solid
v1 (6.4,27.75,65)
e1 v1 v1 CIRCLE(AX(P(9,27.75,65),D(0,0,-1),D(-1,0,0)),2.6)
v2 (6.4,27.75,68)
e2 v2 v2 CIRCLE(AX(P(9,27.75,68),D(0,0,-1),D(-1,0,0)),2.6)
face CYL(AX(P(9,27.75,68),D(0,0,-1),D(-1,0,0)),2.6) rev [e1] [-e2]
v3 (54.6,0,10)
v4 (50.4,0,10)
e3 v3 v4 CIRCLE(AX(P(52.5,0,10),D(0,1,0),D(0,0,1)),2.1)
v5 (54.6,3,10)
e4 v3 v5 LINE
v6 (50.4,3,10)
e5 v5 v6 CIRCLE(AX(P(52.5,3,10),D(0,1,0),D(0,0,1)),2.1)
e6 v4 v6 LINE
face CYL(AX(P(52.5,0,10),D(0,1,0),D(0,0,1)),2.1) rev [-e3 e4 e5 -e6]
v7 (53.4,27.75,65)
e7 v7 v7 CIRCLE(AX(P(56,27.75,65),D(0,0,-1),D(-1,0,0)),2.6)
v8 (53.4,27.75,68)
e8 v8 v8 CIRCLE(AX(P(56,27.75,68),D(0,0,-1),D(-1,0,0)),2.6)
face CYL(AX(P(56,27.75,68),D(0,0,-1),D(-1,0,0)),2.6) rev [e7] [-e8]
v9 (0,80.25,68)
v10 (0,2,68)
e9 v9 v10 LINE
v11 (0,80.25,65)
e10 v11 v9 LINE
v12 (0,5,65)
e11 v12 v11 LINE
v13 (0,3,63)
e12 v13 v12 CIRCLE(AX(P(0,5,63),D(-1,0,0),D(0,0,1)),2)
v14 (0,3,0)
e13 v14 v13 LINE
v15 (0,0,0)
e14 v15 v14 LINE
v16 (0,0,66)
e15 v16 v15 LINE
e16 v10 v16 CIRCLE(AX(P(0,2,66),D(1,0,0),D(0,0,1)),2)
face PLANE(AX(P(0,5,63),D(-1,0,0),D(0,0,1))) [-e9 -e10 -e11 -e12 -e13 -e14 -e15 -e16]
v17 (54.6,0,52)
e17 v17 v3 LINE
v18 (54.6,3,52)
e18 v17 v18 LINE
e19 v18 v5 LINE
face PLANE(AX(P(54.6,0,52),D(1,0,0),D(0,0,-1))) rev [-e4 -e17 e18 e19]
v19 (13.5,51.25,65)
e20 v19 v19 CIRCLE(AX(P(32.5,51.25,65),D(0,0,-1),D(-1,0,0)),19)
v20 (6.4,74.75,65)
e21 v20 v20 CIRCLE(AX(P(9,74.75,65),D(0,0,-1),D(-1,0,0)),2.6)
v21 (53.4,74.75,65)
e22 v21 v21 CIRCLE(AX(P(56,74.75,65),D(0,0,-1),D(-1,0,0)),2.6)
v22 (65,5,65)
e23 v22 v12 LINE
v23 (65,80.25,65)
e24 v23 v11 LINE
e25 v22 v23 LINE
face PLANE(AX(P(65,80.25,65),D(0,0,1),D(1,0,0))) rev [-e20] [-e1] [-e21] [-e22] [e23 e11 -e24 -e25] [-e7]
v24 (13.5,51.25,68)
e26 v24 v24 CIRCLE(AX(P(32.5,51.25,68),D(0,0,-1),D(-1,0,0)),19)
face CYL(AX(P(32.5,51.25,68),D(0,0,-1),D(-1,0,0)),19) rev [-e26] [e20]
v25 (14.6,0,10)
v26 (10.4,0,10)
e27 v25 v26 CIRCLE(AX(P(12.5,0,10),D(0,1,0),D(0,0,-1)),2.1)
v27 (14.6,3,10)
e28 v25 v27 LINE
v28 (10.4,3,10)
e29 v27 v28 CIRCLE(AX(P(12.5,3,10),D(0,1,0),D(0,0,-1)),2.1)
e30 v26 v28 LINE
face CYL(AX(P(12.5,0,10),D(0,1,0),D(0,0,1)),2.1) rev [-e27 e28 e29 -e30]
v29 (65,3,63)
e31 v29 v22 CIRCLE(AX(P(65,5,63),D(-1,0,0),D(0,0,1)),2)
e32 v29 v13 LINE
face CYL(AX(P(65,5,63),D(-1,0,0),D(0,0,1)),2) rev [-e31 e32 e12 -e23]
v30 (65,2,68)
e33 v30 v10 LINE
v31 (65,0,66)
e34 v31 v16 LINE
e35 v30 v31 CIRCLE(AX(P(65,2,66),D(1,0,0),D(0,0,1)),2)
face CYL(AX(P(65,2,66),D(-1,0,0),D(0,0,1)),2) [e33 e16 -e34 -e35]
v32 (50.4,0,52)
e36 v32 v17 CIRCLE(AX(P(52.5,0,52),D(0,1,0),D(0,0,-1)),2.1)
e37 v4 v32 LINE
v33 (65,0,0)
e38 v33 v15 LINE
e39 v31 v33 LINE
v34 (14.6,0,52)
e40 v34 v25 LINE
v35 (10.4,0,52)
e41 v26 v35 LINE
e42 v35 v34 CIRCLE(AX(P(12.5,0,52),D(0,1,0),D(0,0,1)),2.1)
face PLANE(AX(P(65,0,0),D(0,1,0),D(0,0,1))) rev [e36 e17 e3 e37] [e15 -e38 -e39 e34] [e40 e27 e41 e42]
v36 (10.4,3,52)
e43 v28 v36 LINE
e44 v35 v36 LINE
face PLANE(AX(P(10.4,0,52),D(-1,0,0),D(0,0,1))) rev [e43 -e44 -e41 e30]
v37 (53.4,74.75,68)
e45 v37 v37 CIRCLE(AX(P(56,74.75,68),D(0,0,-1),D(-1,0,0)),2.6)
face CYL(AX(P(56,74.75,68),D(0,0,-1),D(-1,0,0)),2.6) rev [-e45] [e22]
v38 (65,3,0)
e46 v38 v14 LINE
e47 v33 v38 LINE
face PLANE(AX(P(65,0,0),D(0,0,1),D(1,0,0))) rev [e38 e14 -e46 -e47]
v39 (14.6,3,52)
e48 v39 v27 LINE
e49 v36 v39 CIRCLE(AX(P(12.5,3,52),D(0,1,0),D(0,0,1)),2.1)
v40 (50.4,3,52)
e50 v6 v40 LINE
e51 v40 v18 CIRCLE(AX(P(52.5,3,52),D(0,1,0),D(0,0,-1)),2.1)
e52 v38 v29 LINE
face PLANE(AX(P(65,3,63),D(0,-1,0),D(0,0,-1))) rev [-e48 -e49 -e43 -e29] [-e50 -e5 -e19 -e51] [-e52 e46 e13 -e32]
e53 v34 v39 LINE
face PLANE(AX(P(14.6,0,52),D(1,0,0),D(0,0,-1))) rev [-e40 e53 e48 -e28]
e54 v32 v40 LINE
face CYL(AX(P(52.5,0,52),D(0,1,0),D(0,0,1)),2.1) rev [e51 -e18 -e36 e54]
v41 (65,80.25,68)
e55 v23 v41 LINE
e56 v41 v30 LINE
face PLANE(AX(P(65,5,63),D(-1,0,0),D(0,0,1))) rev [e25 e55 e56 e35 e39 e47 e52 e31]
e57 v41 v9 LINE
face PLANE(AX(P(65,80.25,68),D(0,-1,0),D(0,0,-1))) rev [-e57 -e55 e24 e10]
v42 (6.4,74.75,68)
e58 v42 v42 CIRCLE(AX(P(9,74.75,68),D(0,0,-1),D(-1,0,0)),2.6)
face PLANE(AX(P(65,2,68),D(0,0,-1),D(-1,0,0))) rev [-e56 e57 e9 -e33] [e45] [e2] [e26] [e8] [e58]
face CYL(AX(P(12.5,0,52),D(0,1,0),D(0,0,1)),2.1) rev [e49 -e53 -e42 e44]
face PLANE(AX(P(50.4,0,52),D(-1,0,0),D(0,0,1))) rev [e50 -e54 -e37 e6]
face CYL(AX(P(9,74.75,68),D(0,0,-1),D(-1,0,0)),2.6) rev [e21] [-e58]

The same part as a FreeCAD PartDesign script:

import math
import FreeCAD as App
import Part
import Sketcher

V = App.Vector
Q = App.Units.Quantity

doc = App.newDocument("Part")
body = doc.addObject("PartDesign::Body", "Body")

sketch1 = body.newObject("Sketcher::SketchObject", "Sketch")
sketch1.AttachmentSupport = (doc.getObject("YZ_Plane"), [""])
sketch1.MapMode = "FlatFace"
sketch1.addGeometry([
    Part.LineSegment(V(0, 66, 0), V(0, 0, 0)),
    Part.LineSegment(V(0, 0, 0), V(3, 0, 0)),
    Part.LineSegment(V(3, 0, 0), V(3, 63, 0)),
    Part.ArcOfCircle(Part.Circle(V(5, 63, 0), V(0, 0, 1), 2), math.radians(90), math.radians(180)),
    Part.LineSegment(V(5, 65, 0), V(80.25, 65, 0)),
    Part.LineSegment(V(80.25, 65, 0), V(80.25, 68, 0)),
    Part.LineSegment(V(80.25, 68, 0), V(2, 68, 0)),
    Part.ArcOfCircle(Part.Circle(V(2, 66, 0), V(0, 0, 1), 2), math.radians(90), math.radians(180)),
], False)
sketch1.addConstraint([
    Sketcher.Constraint("Coincident", 0, 2, 1, 1),
    Sketcher.Constraint("Coincident", 1, 2, 2, 1),
    Sketcher.Constraint("Tangent", 2, 2, 3, 2),
    Sketcher.Constraint("Tangent", 3, 1, 4, 1),
    Sketcher.Constraint("Coincident", 4, 2, 5, 1),
    Sketcher.Constraint("Coincident", 5, 2, 6, 1),
    Sketcher.Constraint("Tangent", 6, 2, 7, 1),
    Sketcher.Constraint("Tangent", 7, 2, 0, 1),
    Sketcher.Constraint("Vertical", 0),
    Sketcher.Constraint("Horizontal", 1),
    Sketcher.Constraint("Vertical", 2),
    Sketcher.Constraint("Horizontal", 4),
    Sketcher.Constraint("Vertical", 5),
    Sketcher.Constraint("Horizontal", 6),
    Sketcher.Constraint("Coincident", 0, 2, -1, 1),
    Sketcher.Constraint("Equal", 3, 7),
    Sketcher.Constraint("Equal", 1, 5),
    Sketcher.Constraint("Radius", 3, Q("2 mm")),
    Sketcher.Constraint("DistanceX", 1, 1, 1, 2, Q("3 mm")),
    Sketcher.Constraint("DistanceY", 0, 2, 0, 1, Q("66 mm")),
    Sketcher.Constraint("DistanceX", 4, 1, 4, 2, Q("75.25 mm")),
])
pad1 = body.newObject("PartDesign::Pad", "Pad")
pad1.Profile = sketch1
pad1.Length = 65

sketch2 = body.newObject("Sketcher::SketchObject", "Sketch001")
sketch2.AttachmentSupport = (doc.getObject("XZ_Plane"), [""])
sketch2.MapMode = "FlatFace"
sketch2.AttachmentOffset = App.Placement(V(0, 0, -3), App.Rotation())
sketch2.addGeometry([
    Part.LineSegment(V(50.4, 10, 0), V(50.4, 52, 0)),
    Part.ArcOfCircle(Part.Circle(V(52.5, 52, 0), V(0, 0, 1), 2.1), math.radians(0), math.radians(180)),
    Part.LineSegment(V(54.6, 52, 0), V(54.6, 10, 0)),
    Part.ArcOfCircle(Part.Circle(V(52.5, 10, 0), V(0, 0, 1), 2.1), math.radians(180), math.radians(360)),
    Part.LineSegment(V(10.4, 10, 0), V(10.4, 52, 0)),
    Part.ArcOfCircle(Part.Circle(V(12.5, 52, 0), V(0, 0, 1), 2.1), math.radians(0), math.radians(180)),
    Part.LineSegment(V(14.6, 52, 0), V(14.6, 10, 0)),
    Part.ArcOfCircle(Part.Circle(V(12.5, 10, 0), V(0, 0, 1), 2.1), math.radians(180), math.radians(360)),
], False)
sketch2.addConstraint([
    Sketcher.Constraint("Tangent", 0, 2, 1, 2),
    Sketcher.Constraint("Tangent", 1, 1, 2, 1),
    Sketcher.Constraint("Tangent", 2, 2, 3, 2),
    Sketcher.Constraint("Tangent", 3, 1, 0, 1),
    Sketcher.Constraint("Tangent", 4, 2, 5, 2),
    Sketcher.Constraint("Tangent", 5, 1, 6, 1),
    Sketcher.Constraint("Tangent", 6, 2, 7, 2),
    Sketcher.Constraint("Tangent", 7, 1, 4, 1),
    Sketcher.Constraint("Vertical", 0),
    Sketcher.Constraint("Vertical", 2),
    Sketcher.Constraint("Vertical", 4),
    Sketcher.Constraint("Vertical", 6),
    Sketcher.Constraint("Equal", 3, 5),
    Sketcher.Constraint("Horizontal", 1, 3, 5, 3),
    Sketcher.Constraint("Horizontal", 3, 3, 7, 3),
    Sketcher.Constraint("Radius", 1, Q("2.1 mm")),
    Sketcher.Constraint("DistanceY", 0, 1, 0, 2, Q("42 mm")),
    Sketcher.Constraint("DistanceY", -1, 1, 1, 3, Q("52 mm")),
    Sketcher.Constraint("DistanceX", 5, 3, 1, 3, Q("40 mm")),
    Sketcher.Constraint("DistanceX", -1, 1, 1, 3, Q("52.5 mm")),
])
pocket1 = body.newObject("PartDesign::Pocket", "Pocket")
pocket1.Profile = sketch2
pocket1.Length = 3
pocket1.Reversed = True

sketch3 = body.newObject("Sketcher::SketchObject", "Sketch002")
sketch3.AttachmentSupport = (doc.getObject("XY_Plane"), [""])
sketch3.MapMode = "FlatFace"
sketch3.AttachmentOffset = App.Placement(V(0, 0, 65), App.Rotation())
sketch3.addGeometry([
    Part.Circle(V(32.5, 51.25, 0), V(0, 0, 1), 19),
    Part.Circle(V(9, 74.75, 0), V(0, 0, 1), 2.6),
    Part.Circle(V(56, 74.75, 0), V(0, 0, 1), 2.6),
    Part.Circle(V(56, 27.75, 0), V(0, 0, 1), 2.6),
    Part.Circle(V(9, 27.75, 0), V(0, 0, 1), 2.6),
], False)
sketch3.addConstraint([
    Sketcher.Constraint("Equal", 1, 2),
    Sketcher.Constraint("Equal", 2, 3),
    Sketcher.Constraint("Equal", 3, 4),
    Sketcher.Constraint("Horizontal", 1, 3, 2, 3),
    Sketcher.Constraint("Horizontal", 3, 3, 4, 3),
    Sketcher.Constraint("Vertical", 2, 3, 3, 3),
    Sketcher.Constraint("Vertical", 1, 3, 4, 3),
    Sketcher.Constraint("Diameter", 0, Q("38 mm")),
    Sketcher.Constraint("Diameter", 1, Q("5.2 mm")),
    Sketcher.Constraint("DistanceX", -1, 1, 1, 3, Q("9 mm")),
    Sketcher.Constraint("DistanceX", -1, 1, 2, 3, Q("56 mm")),
    Sketcher.Constraint("DistanceY", 3, 3, 2, 3, Q("47 mm")),
    Sketcher.Constraint("DistanceX", -1, 1, 0, 3, Q("32.5 mm")),
    Sketcher.Constraint("DistanceY", 0, 3, 1, 3, Q("23.5 mm")),
    Sketcher.Constraint("DistanceY", -1, 1, 0, 3, Q("51.25 mm")),
])
pocket2 = body.newObject("PartDesign::Pocket", "Pocket001")
pocket2.Profile = sketch3
pocket2.Length = 3
pocket2.Reversed = True

doc.recompute()
